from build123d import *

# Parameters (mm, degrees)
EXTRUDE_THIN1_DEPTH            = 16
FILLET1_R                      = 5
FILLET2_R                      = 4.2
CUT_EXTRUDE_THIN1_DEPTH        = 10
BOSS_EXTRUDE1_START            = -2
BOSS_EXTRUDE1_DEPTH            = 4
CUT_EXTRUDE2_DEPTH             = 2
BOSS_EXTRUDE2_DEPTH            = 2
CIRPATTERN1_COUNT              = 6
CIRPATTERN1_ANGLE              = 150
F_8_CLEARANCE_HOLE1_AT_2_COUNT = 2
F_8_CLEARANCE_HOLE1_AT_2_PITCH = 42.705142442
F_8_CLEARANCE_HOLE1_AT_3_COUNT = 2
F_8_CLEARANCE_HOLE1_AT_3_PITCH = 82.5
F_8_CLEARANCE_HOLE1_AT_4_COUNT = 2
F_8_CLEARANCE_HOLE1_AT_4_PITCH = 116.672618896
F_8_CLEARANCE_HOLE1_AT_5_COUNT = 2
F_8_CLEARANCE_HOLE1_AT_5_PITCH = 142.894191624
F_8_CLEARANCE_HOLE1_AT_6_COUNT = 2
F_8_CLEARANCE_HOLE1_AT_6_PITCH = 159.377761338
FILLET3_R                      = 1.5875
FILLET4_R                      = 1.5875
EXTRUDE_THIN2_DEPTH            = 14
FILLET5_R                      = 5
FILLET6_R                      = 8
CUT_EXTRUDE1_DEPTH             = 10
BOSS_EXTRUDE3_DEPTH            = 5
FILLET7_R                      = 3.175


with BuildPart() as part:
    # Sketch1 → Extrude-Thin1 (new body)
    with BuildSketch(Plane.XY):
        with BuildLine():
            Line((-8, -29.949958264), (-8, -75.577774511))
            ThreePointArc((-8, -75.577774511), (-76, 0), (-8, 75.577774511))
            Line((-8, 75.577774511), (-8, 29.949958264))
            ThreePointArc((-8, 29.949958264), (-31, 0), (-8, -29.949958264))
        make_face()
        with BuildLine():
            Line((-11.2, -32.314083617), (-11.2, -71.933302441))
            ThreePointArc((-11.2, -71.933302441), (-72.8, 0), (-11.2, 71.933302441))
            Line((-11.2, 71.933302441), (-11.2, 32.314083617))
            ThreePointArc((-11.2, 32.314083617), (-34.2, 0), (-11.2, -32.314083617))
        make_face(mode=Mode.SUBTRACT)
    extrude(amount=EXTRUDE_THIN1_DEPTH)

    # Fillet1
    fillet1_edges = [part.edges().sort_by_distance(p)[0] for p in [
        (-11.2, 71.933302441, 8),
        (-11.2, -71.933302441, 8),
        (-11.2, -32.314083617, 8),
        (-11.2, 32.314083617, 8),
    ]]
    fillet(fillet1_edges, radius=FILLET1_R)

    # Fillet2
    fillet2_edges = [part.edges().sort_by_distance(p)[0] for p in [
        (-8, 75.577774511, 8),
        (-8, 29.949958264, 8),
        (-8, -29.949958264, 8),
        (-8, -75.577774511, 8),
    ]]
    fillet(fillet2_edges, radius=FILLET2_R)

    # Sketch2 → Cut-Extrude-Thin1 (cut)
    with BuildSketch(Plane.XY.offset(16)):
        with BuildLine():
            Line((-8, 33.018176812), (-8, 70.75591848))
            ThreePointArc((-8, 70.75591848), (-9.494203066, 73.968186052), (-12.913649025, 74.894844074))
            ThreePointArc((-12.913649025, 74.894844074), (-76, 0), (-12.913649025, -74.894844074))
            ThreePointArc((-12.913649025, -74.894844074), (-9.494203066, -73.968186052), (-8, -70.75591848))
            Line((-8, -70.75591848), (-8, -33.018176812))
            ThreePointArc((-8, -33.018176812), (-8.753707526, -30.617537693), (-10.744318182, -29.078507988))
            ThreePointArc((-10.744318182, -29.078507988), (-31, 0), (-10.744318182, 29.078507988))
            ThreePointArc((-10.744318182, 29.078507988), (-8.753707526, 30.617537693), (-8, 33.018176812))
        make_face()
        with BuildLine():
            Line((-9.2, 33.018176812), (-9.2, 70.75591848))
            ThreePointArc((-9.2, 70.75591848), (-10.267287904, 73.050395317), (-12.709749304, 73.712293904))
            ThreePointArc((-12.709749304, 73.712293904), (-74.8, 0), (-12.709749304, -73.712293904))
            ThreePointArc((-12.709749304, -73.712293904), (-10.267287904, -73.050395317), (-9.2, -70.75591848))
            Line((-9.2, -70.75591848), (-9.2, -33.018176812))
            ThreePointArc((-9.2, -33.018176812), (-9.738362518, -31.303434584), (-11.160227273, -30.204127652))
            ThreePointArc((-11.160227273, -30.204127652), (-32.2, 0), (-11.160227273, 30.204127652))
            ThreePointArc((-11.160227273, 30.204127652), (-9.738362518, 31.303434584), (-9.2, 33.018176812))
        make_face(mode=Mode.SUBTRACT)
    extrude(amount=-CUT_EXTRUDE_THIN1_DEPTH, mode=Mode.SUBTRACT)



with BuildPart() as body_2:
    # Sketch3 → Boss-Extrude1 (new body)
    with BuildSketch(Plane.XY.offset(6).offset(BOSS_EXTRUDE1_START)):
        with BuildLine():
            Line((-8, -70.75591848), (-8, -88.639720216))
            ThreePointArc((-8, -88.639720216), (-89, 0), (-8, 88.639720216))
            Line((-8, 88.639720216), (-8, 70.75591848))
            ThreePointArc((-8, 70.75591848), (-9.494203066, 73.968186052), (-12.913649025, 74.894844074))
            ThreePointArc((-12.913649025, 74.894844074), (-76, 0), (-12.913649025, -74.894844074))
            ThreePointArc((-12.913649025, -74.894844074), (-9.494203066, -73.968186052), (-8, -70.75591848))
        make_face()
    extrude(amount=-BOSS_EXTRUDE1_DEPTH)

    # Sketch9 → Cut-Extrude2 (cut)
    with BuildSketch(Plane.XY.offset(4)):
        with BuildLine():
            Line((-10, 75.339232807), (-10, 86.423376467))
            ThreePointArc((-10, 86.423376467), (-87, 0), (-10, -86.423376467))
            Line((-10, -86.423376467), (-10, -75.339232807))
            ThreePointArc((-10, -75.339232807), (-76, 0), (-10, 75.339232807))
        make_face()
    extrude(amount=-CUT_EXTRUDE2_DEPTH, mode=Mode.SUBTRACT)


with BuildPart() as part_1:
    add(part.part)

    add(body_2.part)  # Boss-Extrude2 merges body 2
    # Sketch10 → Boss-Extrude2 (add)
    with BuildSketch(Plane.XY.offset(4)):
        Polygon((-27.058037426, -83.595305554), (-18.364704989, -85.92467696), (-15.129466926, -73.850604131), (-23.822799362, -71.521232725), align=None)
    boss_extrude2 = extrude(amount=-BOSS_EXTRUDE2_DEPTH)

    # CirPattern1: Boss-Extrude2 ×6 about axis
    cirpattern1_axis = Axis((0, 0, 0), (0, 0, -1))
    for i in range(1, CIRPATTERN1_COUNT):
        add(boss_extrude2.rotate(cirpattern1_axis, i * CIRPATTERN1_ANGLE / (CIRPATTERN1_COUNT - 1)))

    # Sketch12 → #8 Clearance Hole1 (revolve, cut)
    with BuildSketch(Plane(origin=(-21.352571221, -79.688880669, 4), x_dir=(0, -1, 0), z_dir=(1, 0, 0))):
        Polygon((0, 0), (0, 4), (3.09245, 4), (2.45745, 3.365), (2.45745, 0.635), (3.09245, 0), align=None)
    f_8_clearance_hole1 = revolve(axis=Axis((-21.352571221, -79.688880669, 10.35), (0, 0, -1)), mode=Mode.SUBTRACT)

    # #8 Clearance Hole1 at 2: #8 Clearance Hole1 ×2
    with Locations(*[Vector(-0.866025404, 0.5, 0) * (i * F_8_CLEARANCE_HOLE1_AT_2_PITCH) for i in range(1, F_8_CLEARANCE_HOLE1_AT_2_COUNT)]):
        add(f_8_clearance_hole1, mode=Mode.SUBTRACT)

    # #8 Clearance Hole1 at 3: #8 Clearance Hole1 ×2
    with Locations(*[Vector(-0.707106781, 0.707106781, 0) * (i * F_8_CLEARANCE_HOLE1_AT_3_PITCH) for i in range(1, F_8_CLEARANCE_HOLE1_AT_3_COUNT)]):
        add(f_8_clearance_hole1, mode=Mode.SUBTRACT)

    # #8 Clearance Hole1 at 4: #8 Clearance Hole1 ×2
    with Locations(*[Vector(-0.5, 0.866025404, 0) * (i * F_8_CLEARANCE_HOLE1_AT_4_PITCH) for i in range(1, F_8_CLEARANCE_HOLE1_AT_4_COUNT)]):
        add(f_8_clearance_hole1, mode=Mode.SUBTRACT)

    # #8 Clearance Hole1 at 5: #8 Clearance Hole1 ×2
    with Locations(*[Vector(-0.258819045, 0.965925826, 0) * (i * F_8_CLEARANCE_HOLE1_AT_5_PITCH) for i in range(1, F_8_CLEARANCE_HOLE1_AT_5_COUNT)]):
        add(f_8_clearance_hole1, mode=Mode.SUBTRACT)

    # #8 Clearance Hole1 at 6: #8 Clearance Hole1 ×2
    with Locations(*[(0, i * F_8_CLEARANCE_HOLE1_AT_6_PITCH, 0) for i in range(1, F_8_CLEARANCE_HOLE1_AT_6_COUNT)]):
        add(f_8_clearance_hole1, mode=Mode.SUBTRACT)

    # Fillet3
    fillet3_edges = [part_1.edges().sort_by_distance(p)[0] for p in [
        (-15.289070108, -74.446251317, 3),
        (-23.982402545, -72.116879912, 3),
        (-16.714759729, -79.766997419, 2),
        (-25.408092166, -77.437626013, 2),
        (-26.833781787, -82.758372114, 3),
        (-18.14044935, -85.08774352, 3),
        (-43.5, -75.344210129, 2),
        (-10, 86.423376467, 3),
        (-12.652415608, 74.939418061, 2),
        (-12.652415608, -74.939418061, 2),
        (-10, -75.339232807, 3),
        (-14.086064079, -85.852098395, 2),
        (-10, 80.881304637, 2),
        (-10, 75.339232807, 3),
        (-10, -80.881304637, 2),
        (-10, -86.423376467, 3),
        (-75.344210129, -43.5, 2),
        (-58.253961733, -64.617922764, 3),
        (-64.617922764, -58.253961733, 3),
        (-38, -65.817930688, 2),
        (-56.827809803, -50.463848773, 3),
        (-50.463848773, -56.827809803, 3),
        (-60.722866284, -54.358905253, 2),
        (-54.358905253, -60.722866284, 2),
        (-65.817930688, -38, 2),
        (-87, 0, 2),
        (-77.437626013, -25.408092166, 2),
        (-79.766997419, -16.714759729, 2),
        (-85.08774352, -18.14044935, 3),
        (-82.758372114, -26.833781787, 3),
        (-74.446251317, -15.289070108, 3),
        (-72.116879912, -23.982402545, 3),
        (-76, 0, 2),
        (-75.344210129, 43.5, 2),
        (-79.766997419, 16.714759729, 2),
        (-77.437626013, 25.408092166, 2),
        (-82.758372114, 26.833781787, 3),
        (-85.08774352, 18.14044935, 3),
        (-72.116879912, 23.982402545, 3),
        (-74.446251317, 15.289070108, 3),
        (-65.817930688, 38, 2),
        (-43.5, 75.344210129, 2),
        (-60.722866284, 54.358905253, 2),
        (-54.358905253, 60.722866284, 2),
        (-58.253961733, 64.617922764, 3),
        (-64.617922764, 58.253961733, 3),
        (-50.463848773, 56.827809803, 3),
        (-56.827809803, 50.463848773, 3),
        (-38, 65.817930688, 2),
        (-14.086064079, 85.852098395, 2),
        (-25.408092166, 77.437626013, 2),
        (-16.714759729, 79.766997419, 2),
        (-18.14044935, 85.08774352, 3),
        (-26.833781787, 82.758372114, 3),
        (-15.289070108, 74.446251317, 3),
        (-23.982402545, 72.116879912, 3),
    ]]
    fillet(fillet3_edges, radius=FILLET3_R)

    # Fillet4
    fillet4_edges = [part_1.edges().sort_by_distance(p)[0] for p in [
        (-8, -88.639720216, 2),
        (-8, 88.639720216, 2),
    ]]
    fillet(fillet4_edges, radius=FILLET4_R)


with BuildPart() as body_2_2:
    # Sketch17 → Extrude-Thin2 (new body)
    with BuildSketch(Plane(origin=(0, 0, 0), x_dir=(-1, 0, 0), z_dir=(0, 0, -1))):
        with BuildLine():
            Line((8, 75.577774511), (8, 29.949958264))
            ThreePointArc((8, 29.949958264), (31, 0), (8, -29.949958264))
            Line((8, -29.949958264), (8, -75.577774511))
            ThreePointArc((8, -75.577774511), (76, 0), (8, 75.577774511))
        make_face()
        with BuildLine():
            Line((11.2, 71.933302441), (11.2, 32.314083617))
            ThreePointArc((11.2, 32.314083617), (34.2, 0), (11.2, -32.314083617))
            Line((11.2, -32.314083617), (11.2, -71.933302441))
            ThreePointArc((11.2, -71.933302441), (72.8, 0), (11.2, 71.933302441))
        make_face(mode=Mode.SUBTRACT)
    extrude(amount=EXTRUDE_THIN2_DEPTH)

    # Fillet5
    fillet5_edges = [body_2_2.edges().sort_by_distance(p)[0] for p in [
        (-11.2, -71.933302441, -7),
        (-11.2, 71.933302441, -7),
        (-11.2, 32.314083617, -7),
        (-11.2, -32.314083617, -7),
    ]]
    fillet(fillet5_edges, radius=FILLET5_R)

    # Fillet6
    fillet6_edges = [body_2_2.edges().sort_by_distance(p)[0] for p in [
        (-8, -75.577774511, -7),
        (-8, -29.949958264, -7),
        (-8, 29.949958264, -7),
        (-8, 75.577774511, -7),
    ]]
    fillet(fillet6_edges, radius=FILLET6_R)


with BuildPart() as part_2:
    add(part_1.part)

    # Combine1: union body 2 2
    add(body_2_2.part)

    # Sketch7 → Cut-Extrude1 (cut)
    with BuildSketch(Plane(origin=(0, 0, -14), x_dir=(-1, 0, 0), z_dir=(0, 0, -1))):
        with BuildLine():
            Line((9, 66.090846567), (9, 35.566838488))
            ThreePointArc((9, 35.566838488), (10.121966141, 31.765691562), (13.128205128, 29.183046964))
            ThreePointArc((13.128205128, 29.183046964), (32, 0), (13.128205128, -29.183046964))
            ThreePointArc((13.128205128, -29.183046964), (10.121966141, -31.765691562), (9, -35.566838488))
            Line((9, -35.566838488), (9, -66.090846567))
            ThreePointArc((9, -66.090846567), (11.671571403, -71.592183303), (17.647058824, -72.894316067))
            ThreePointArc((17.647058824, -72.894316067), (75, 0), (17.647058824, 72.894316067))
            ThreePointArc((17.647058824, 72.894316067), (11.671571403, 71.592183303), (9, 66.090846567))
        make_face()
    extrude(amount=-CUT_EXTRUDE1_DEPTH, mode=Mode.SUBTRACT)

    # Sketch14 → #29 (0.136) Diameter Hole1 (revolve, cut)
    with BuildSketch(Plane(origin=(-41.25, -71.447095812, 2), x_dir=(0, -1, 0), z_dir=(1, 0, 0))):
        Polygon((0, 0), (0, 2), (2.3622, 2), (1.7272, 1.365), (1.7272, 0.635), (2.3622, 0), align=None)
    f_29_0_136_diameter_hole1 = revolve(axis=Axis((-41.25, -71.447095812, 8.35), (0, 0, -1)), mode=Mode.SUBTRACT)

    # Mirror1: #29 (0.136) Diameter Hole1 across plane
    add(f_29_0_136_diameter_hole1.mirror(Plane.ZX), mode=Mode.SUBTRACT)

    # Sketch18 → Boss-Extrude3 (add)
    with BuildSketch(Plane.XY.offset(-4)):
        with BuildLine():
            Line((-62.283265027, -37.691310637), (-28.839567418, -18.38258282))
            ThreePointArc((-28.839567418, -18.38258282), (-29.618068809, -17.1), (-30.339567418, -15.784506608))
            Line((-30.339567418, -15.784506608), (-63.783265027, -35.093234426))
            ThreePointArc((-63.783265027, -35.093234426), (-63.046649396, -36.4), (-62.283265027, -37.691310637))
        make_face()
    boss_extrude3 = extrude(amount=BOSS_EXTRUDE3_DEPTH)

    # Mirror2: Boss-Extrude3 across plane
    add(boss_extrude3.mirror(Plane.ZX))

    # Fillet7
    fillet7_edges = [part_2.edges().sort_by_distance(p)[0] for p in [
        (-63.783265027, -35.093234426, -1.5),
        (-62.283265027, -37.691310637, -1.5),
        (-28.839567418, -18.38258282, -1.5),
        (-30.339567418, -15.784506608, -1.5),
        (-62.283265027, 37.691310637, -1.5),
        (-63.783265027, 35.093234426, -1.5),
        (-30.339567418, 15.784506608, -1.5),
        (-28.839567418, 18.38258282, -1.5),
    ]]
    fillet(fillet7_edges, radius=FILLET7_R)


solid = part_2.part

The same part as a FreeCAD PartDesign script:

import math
import FreeCAD as App
import Part
import Sketcher

V = App.Vector
Q = App.Units.Quantity


def edges_at(feature, points):
    """Names of the edges that pass closest to the given points."""
    edges = feature.Shape.Edges
    near = lambda p: min(range(len(edges)), key=lambda i: edges[i].distToShape(Part.Vertex(*p))[0])
    return sorted({f"Edge{near(p) + 1}" for p in points})


def add_polygon(sketch, points):
    """Adds a closed chain of lines whose ends are joined by coincident constraints."""
    first, n = sketch.GeometryCount, len(points)
    for a, b in zip(points, points[1:] + points[:1]):
        sketch.addGeometry(Part.LineSegment(App.Vector(*a, 0), App.Vector(*b, 0)), False)
    for i in range(n):
        sketch.addConstraint(Sketcher.Constraint("Coincident", first + i, 2, first + (i + 1) % n, 1))

doc = App.newDocument("Part")
body = doc.addObject("PartDesign::Body", "Body")

# Sketch on XY plane
sketch1 = body.newObject("Sketcher::SketchObject", "Sketch")
sketch1.AttachmentSupport = (doc.getObject("XY_Plane"), [""])
sketch1.MapMode = "FlatFace"
sketch1.addGeometry([
    Part.LineSegment(V(-8, -76, 0), V(-8, -30, 0)),  # 0
    Part.ArcOfCircle(Part.Circle(V(0, 0, 0), V(0, 0, 1), 31), math.radians(105), math.radians(255)),  # 1
    Part.LineSegment(V(-8, 30, 0), V(-8, 76, 0)),  # 2
    Part.ArcOfCircle(Part.Circle(V(0, 0, 0), V(0, 0, 1), 76), math.radians(96), math.radians(264)),  # 3
    Part.LineSegment(V(-11, -32, 0), V(-11, -72, 0)),  # 4
    Part.ArcOfCircle(Part.Circle(V(0, 0, 0), V(0, 0, 1), 73), math.radians(99), math.radians(261)),  # 5
    Part.LineSegment(V(-11, 72, 0), V(-11, 32, 0)),  # 6
    Part.ArcOfCircle(Part.Circle(V(0, 0, 0), V(0, 0, 1), 34), math.radians(109), math.radians(251)),  # 7
], False)
sketch1.addConstraint([
    Sketcher.Constraint("Coincident", 0, 2, 1, 2),
    Sketcher.Constraint("Coincident", 1, 1, 2, 1),
    Sketcher.Constraint("Coincident", 2, 2, 3, 1),
    Sketcher.Constraint("Coincident", 3, 2, 0, 1),
    Sketcher.Constraint("Coincident", 4, 2, 5, 2),
    Sketcher.Constraint("Coincident", 5, 1, 6, 1),
    Sketcher.Constraint("Coincident", 6, 2, 7, 1),
    Sketcher.Constraint("Coincident", 7, 2, 4, 1),
    Sketcher.Constraint("Vertical", 0),
    Sketcher.Constraint("Vertical", 2),
    Sketcher.Constraint("Vertical", 4),
    Sketcher.Constraint("Vertical", 6),
    Sketcher.Constraint("Coincident", 1, 3, -1, 1),
    Sketcher.Constraint("Coincident", 3, 3, -1, 1),
    Sketcher.Constraint("Coincident", 5, 3, -1, 1),
    Sketcher.Constraint("Coincident", 7, 3, -1, 1),
    Sketcher.Constraint("Vertical", 0, 2, 1, 1),
    Sketcher.Constraint("Vertical", 4, 2, 5, 1),
    Sketcher.Constraint("Radius", 1, 31.0),
    Sketcher.Constraint("Radius", 3, 76.0),
    Sketcher.Constraint("Radius", 5, 72.8),
    Sketcher.Constraint("Radius", 7, 34.2),
    Sketcher.Constraint("DistanceX", 0, 2, -1, 1, 8.0),
    Sketcher.Constraint("DistanceX", 4, 2, -1, 1, 11.2),
])
pad1 = body.newObject("PartDesign::Pad", "Pad")
pad1.Profile = sketch1
pad1.Length = 16
doc.recompute()

fillet = body.newObject("PartDesign::Fillet", "Fillet")
fillet.Base = (pad1, edges_at(pad1, [
    (-11.2, 71.933, 8),
    (-11.2, -71.933, 8),
    (-11.2, -32.314, 8),
    (-11.2, 32.314, 8),
]))
fillet.Radius = 5
doc.recompute()

fillet2 = body.newObject("PartDesign::Fillet", "Fillet001")
fillet2.Base = (fillet, edges_at(fillet, [
    (-8, 75.578, 8),
    (-8, 29.95, 8),
    (-8, -29.95, 8),
    (-8, -75.578, 8),
]))
fillet2.Radius = 4.2

# Sketch on XY plane
sketch2 = body.newObject("Sketcher::SketchObject", "Sketch001")
sketch2.AttachmentSupport = (doc.getObject("XY_Plane"), [""])
sketch2.MapMode = "FlatFace"
sketch2.AttachmentOffset = App.Placement(V(0, 0, 16), App.Rotation())
sketch2.addGeometry([
    Part.LineSegment(V(-8, 33, 0), V(-8, 70.8, 0)),  # 0
    Part.ArcOfCircle(Part.Circle(V(-12.2, 70.8, 0), V(0, 0, 1), 4.2), math.radians(0), math.radians(100)),  # 1
    Part.ArcOfCircle(Part.Circle(V(0, 0, 0), V(0, 0, 1), 76), math.radians(100), math.radians(260)),  # 2
    Part.ArcOfCircle(Part.Circle(V(-12.2, -70.8, 0), V(0, 0, 1), 4.2), math.radians(-100), math.radians(0)),  # 3
    Part.LineSegment(V(-8, -70.8, 0), V(-8, -33, 0)),  # 4
    Part.ArcOfCircle(Part.Circle(V(-12.2, -33, 0), V(0, 0, 1), 4.2), math.radians(0), math.radians(70)),  # 5
    Part.ArcOfCircle(Part.Circle(V(0, 0, 0), V(0, 0, 1), 31), math.radians(110), math.radians(250)),  # 6
    Part.ArcOfCircle(Part.Circle(V(-12.2, 33, 0), V(0, 0, 1), 4.2), math.radians(-70), math.radians(0)),  # 7
    Part.LineSegment(V(-9.2, 70.8, 0), V(-9.2, 33, 0)),  # 8
    Part.ArcOfCircle(Part.Circle(V(-12.2, 33, 0), V(0, 0, 1), 3), math.radians(-70), math.radians(0)),  # 9
    Part.ArcOfCircle(Part.Circle(V(0, 0, 0), V(0, 0, 1), 32.2), math.radians(110), math.radians(250)),  # 10
    Part.ArcOfCircle(Part.Circle(V(-12.2, -33, 0), V(0, 0, 1), 3), math.radians(0), math.radians(70)),  # 11
    Part.LineSegment(V(-9.2, -33, 0), V(-9.2, -70.8, 0)),  # 12
    Part.ArcOfCircle(Part.Circle(V(-12.2, -70.8, 0), V(0, 0, 1), 3), math.radians(-100), math.radians(0)),  # 13
    Part.ArcOfCircle(Part.Circle(V(0, 0, 0), V(0, 0, 1), 74.8), math.radians(100), math.radians(260)),  # 14
    Part.ArcOfCircle(Part.Circle(V(-12.2, 70.8, 0), V(0, 0, 1), 3), math.radians(0), math.radians(100)),  # 15
], False)
sketch2.addConstraint([
    Sketcher.Constraint("Tangent", 0, 2, 1, 1),
    Sketcher.Constraint("Tangent", 1, 2, 2, 1),
    Sketcher.Constraint("Tangent", 2, 2, 3, 1),
    Sketcher.Constraint("Tangent", 3, 2, 4, 1),
    Sketcher.Constraint("Tangent", 4, 2, 5, 1),
    Sketcher.Constraint("Tangent", 5, 2, 6, 2),
    Sketcher.Constraint("Tangent", 6, 1, 7, 1),
    Sketcher.Constraint("Tangent", 7, 2, 0, 1),
    Sketcher.Constraint("Tangent", 8, 2, 9, 2),
    Sketcher.Constraint("Tangent", 9, 1, 10, 1),
    Sketcher.Constraint("Tangent", 10, 2, 11, 2),
    Sketcher.Constraint("Tangent", 11, 1, 12, 1),
    Sketcher.Constraint("Tangent", 12, 2, 13, 2),
    Sketcher.Constraint("Tangent", 13, 1, 14, 2),
    Sketcher.Constraint("Tangent", 14, 1, 15, 2),
    Sketcher.Constraint("Tangent", 15, 1, 8, 1),
    Sketcher.Constraint("Vertical", 0),
    Sketcher.Constraint("Vertical", 4),
    Sketcher.Constraint("Vertical", 8),
    Sketcher.Constraint("Vertical", 12),
    Sketcher.Constraint("Coincident", 2, 3, -1, 1),
    Sketcher.Constraint("Coincident", 6, 3, -1, 1),
    Sketcher.Constraint("Coincident", 10, 3, -1, 1),
    Sketcher.Constraint("Coincident", 14, 3, -1, 1),
    Sketcher.Constraint("Coincident", 9, 3, 7, 3),
    Sketcher.Constraint("Coincident", 11, 3, 5, 3),
    Sketcher.Constraint("Coincident", 13, 3, 3, 3),
    Sketcher.Constraint("Equal", 1, 3),
    Sketcher.Constraint("Equal", 3, 5),
    Sketcher.Constraint("Equal", 5, 7),
    Sketcher.Constraint("Equal", 13, 15),
    Sketcher.Constraint("Vertical", 1, 3, 3, 3),
    Sketcher.Constraint("Radius", 2, 76.0),
    Sketcher.Constraint("Radius", 6, 31.0),
    Sketcher.Constraint("Radius", 9, 3.0),
    Sketcher.Constraint("Radius", 1, 4.2),
    Sketcher.Constraint("DistanceX", 0, 2, -1, 1, 8.0),
])
pocket1 = body.newObject("PartDesign::Pocket", "Pocket")
pocket1.Profile = sketch2
pocket1.Length = 10
body2 = doc.addObject("PartDesign::Body", "Body001")

# Sketch on XY plane
sketch3 = body2.newObject("Sketcher::SketchObject", "Sketch002")
sketch3.AttachmentSupport = (doc.getObject("XY_Plane001"), [""])
sketch3.MapMode = "FlatFace"
sketch3.AttachmentOffset = App.Placement(V(0, 0, 4), App.Rotation())
sketch3.addGeometry([
    Part.LineSegment(V(-8, -88.6, 0), V(-8, -70.8, 0)),  # 0
    Part.ArcOfCircle(Part.Circle(V(-12.2, -70.8, 0), V(0, 0, 1), 4.2), math.radians(-100), math.radians(0)),  # 1
    Part.ArcOfCircle(Part.Circle(V(0, 0, 0), V(0, 0, 1), 76), math.radians(100), math.radians(260)),  # 2
    Part.ArcOfCircle(Part.Circle(V(-12.2, 70.8, 0), V(0, 0, 1), 4.2), math.radians(0), math.radians(100)),  # 3
    Part.LineSegment(V(-8, 70.8, 0), V(-8, 88.6, 0)),  # 4
    Part.ArcOfCircle(Part.Circle(V(0, 0, 0), V(0, 0, 1), 89), math.radians(95), math.radians(265)),  # 5
], False)
sketch3.addConstraint([
    Sketcher.Constraint("Tangent", 0, 2, 1, 2),
    Sketcher.Constraint("Tangent", 1, 1, 2, 2),
    Sketcher.Constraint("Tangent", 2, 1, 3, 2),
    Sketcher.Constraint("Tangent", 3, 1, 4, 1),
    Sketcher.Constraint("Coincident", 4, 2, 5, 1),
    Sketcher.Constraint("Coincident", 5, 2, 0, 1),
    Sketcher.Constraint("Vertical", 0),
    Sketcher.Constraint("Vertical", 4),
    Sketcher.Constraint("Coincident", 2, 3, -1, 1),
    Sketcher.Constraint("Coincident", 5, 3, -1, 1),
    Sketcher.Constraint("Equal", 1, 3),
    Sketcher.Constraint("Vertical", 1, 3, 3, 3),
    Sketcher.Constraint("Radius", 2, 76.0),
    Sketcher.Constraint("Radius", 5, 89.0),
    Sketcher.Constraint("Radius", 1, 4.2),
    Sketcher.Constraint("DistanceX", 0, 2, -1, 1, 8.0),
])
pad2 = body2.newObject("PartDesign::Pad", "Pad001")
pad2.Profile = sketch3
pad2.Length = 4
pad2.Reversed = True

# Sketch on XY plane
sketch4 = body2.newObject("Sketcher::SketchObject", "Sketch003")
sketch4.AttachmentSupport = (doc.getObject("XY_Plane001"), [""])
sketch4.MapMode = "FlatFace"
sketch4.AttachmentOffset = App.Placement(V(0, 0, 4), App.Rotation())
sketch4.addGeometry([
    Part.LineSegment(V(-10, 75, 0), V(-10, 86, 0)),
    Part.ArcOfCircle(Part.Circle(V(0, 0, 0), V(0, 0, 1), 87), math.radians(97), math.radians(263)),
    Part.LineSegment(V(-10, -86, 0), V(-10, -75, 0)),
    Part.ArcOfCircle(Part.Circle(V(0, 0, 0), V(0, 0, 1), 76), math.radians(98), math.radians(262)),
], False)
sketch4.addConstraint([
    Sketcher.Constraint("Coincident", 0, 2, 1, 1),
    Sketcher.Constraint("Coincident", 1, 2, 2, 1),
    Sketcher.Constraint("Coincident", 2, 2, 3, 2),
    Sketcher.Constraint("Coincident", 3, 1, 0, 1),
    Sketcher.Constraint("Vertical", 0),
    Sketcher.Constraint("Vertical", 2),
    Sketcher.Constraint("Coincident", 1, 3, -1, 1),
    Sketcher.Constraint("Coincident", 3, 3, -1, 1),
    Sketcher.Constraint("Vertical", 0, 2, 1, 2),
    Sketcher.Constraint("Radius", 1, 87.0),
    Sketcher.Constraint("Radius", 3, 76.0),
    Sketcher.Constraint("DistanceX", 0, 2, -1, 1, 10.0),
])
pocket2 = body2.newObject("PartDesign::Pocket", "Pocket001")
pocket2.Profile = sketch4
pocket2.Length = 2
doc.recompute()

boolean = body.newObject("PartDesign::Boolean", "Boolean")
boolean.Type = "Fuse"
boolean.addObjects([body2])

# Sketch on XY plane
sketch5 = body.newObject("Sketcher::SketchObject", "Sketch004")
sketch5.AttachmentSupport = (doc.getObject("XY_Plane"), [""])
sketch5.MapMode = "FlatFace"
sketch5.AttachmentOffset = App.Placement(V(0, 0, 4), App.Rotation())
add_polygon(sketch5, [(-27, -84), (-18, -86), (-15, -74), (-24, -72)])  # lines 0-3
sketch5.addConstraint([
    Sketcher.Constraint("Perpendicular", 0, 1),
    Sketcher.Constraint("Perpendicular", 1, 2),
    Sketcher.Constraint("Perpendicular", 2, 3),
    Sketcher.Constraint("Angle", 0, Q("-15 deg")),
    Sketcher.Constraint("Distance", 0, 9.0),
    Sketcher.Constraint("Distance", 1, 12.5),
    Sketcher.Constraint("DistanceX", 2, 2, -1, 1, 23.822799),
    Sketcher.Constraint("DistanceY", 0, 2, -1, 1, 85.924677),
])
pad3 = body.newObject("PartDesign::Pad", "Pad002")
pad3.Profile = sketch5
pad3.Length = 2
pad3.Reversed = True
doc.recompute()

polarpattern = body.newObject("PartDesign::PolarPattern", "PolarPattern")
polarpattern.Originals = [pad3]
polarpattern.Axis = (doc.getObject("Z_Axis"), [""])
polarpattern.Angle = 150
polarpattern.Occurrences = 6
polarpattern.Reversed = True
body.Tip = polarpattern

# Sketch on YZ plane
sketch6 = body.newObject("Sketcher::SketchObject", "Sketch005")
sketch6.AttachmentSupport = (doc.getObject("YZ_Plane"), [""])
sketch6.MapMode = "FlatFace"
sketch6.AttachmentOffset = App.Placement(V(0, 0, -21.352571), App.Rotation())
add_polygon(sketch6, [(-79.7, 0), (-79.7, 4), (-82.8, 4), (-82.1, 3.4), (-82.1, 0.6), (-82.8, 0)])  # lines 0-5
sketch6.addGeometry(Part.LineSegment(V(-79.7, 4, 0), V(-79.7, 0, 0)), True)  # axis
sketch6.addConstraint([
    Sketcher.Constraint("Vertical", 0),
    Sketcher.Constraint("Horizontal", 1),
    Sketcher.Constraint("Vertical", 3),
    Sketcher.Constraint("Horizontal", 5),
    Sketcher.Constraint("Vertical", 6),
    Sketcher.Constraint("Coincident", 6, 1, 0, 2),
    Sketcher.Constraint("PointOnObject", 4, 2, -1),
    Sketcher.Constraint("PointOnObject", 6, 2, -1),
    Sketcher.Constraint("Perpendicular", 2, 4),
    Sketcher.Constraint("Vertical", 1, 2, 4, 2),
    Sketcher.Constraint("Equal", 2, 4),
    Sketcher.Constraint("DistanceY", 0, 1, 0, 2, 4.0),
    Sketcher.Constraint("DistanceY", 3, 2, 3, 1, 2.73),
    Sketcher.Constraint("DistanceX", 1, 2, 1, 1, 3.09245),
    Sketcher.Constraint("DistanceX", 0, 2, -1, 1, 79.688881),
])
groove = body.newObject("PartDesign::Groove", "Groove")
groove.Profile = sketch6
groove.ReferenceAxis = (sketch6, ["Axis0"])
groove.Angle = 360
doc.recompute()

datumline = body.newObject("PartDesign::Line", "DatumLine")
datumline.Placement = App.Placement(V(0, 0, 0), App.Rotation(V(0, 0, 1), V(-0.866025404, 0.5, 0)))
linearpattern = body.newObject("PartDesign::LinearPattern", "LinearPattern")
linearpattern.Originals = [groove]
linearpattern.Direction = (datumline, [""])
linearpattern.Mode = "offset"
linearpattern.Offset = 42.705142
linearpattern.Occurrences = 2
body.Tip = linearpattern
doc.recompute()

datumline2 = body.newObject("PartDesign::Line", "DatumLine001")
datumline2.Placement = App.Placement(V(0, 0, 0), App.Rotation(V(0, 0, 1), V(-0.707106781, 0.707106781, 0)))
linearpattern2 = body.newObject("PartDesign::LinearPattern", "LinearPattern001")
linearpattern2.Originals = [groove]
linearpattern2.Direction = (datumline2, [""])
linearpattern2.Mode = "offset"
linearpattern2.Offset = 82.5
linearpattern2.Occurrences = 2
body.Tip = linearpattern2
doc.recompute()

datumline3 = body.newObject("PartDesign::Line", "DatumLine002")
datumline3.Placement = App.Placement(V(0, 0, 0), App.Rotation(V(0, 0, 1), V(-0.5, 0.866025404, 0)))
linearpattern3 = body.newObject("PartDesign::LinearPattern", "LinearPattern002")
linearpattern3.Originals = [groove]
linearpattern3.Direction = (datumline3, [""])
linearpattern3.Mode = "offset"
linearpattern3.Offset = 116.672619
linearpattern3.Occurrences = 2
body.Tip = linearpattern3
doc.recompute()

datumline4 = body.newObject("PartDesign::Line", "DatumLine003")
datumline4.Placement = App.Placement(V(0, 0, 0), App.Rotation(V(0, 0, 1), V(-0.258819045, 0.965925826, 0)))
linearpattern4 = body.newObject("PartDesign::LinearPattern", "LinearPattern003")
linearpattern4.Originals = [groove]
linearpattern4.Direction = (datumline4, [""])
linearpattern4.Mode = "offset"
linearpattern4.Offset = 142.894192
linearpattern4.Occurrences = 2
body.Tip = linearpattern4
doc.recompute()

linearpattern5 = body.newObject("PartDesign::LinearPattern", "LinearPattern004")
linearpattern5.Originals = [groove]
linearpattern5.Direction = (doc.getObject("Y_Axis"), [""])
linearpattern5.Mode = "offset"
linearpattern5.Offset = 159.377761
linearpattern5.Occurrences = 2
body.Tip = linearpattern5
doc.recompute()

fillet3 = body.newObject("PartDesign::Fillet", "Fillet002")
fillet3.Base = (linearpattern5, edges_at(linearpattern5, [
    (-15.289, -74.446, 3),
    (-23.982, -72.117, 3),
    (-16.715, -79.767, 2),
    (-25.408, -77.438, 2),
    (-26.834, -82.758, 3),
    (-18.14, -85.088, 3),
    (-43.5, -75.344, 2),
    (-10, 86.423, 3),
    (-11.459, 75.131, 2),
    (-11.459, -75.131, 2),
    (-10, -75.339, 3),
    (-14.086, -85.852, 2),
    (-10, 80.881, 2),
    (-10, 75.339, 3),
    (-10, -80.881, 2),
    (-10, -86.423, 3),
    (-75.344, -43.5, 2),
    (-58.254, -64.618, 3),
    (-64.618, -58.254, 3),
    (-38, -65.818, 2),
    (-56.828, -50.464, 3),
    (-50.464, -56.828, 3),
    (-60.723, -54.359, 2),
    (-54.359, -60.723, 2),
    (-65.818, -38, 2),
    (-87, 0, 2),
    (-77.438, -25.408, 2),
    (-79.767, -16.715, 2),
    (-85.088, -18.14, 3),
    (-82.758, -26.834, 3),
    (-74.446, -15.289, 3),
    (-72.117, -23.982, 3),
    (-76, 0, 2),
    (-75.344, 43.5, 2),
    (-79.767, 16.715, 2),
    (-77.438, 25.408, 2),
    (-82.758, 26.834, 3),
    (-85.088, 18.14, 3),
    (-72.117, 23.982, 3),
    (-74.446, 15.289, 3),
    (-65.818, 38, 2),
    (-43.5, 75.344, 2),
    (-60.723, 54.359, 2),
    (-54.359, 60.723, 2),
    (-58.254, 64.618, 3),
    (-64.618, 58.254, 3),
    (-50.464, 56.828, 3),
    (-56.828, 50.464, 3),
    (-38, 65.818, 2),
    (-14.086, 85.852, 2),
    (-25.408, 77.438, 2),
    (-16.715, 79.767, 2),
    (-18.14, 85.088, 3),
    (-26.834, 82.758, 3),
    (-15.289, 74.446, 3),
    (-23.982, 72.117, 3),
]))
fillet3.Radius = 1.5875
doc.recompute()

fillet4 = body.newObject("PartDesign::Fillet", "Fillet003")
fillet4.Base = (fillet3, edges_at(fillet3, [(-8, -88.64, 2), (-8, 88.64, 2)]))
fillet4.Radius = 1.5875
body3 = doc.addObject("PartDesign::Body", "Body002")

# Sketch on XY plane
sketch7 = body3.newObject("Sketcher::SketchObject", "Sketch006")
sketch7.AttachmentSupport = (doc.getObject("XY_Plane002"), [""])
sketch7.MapMode = "FlatFace"
sketch7.addGeometry([
    Part.LineSegment(V(-8, 76, 0), V(-8, 30, 0)),  # 0
    Part.ArcOfCircle(Part.Circle(V(0, 0, 0), V(0, 0, 1), 31), math.radians(105), math.radians(255)),  # 1
    Part.LineSegment(V(-8, -30, 0), V(-8, -76, 0)),  # 2
    Part.ArcOfCircle(Part.Circle(V(0, 0, 0), V(0, 0, 1), 76), math.radians(96), math.radians(264)),  # 3
    Part.LineSegment(V(-11, 32, 0), V(-11, 72, 0)),  # 4
    Part.ArcOfCircle(Part.Circle(V(0, 0, 0), V(0, 0, 1), 73), math.radians(99), math.radians(261)),  # 5
    Part.LineSegment(V(-11, -72, 0), V(-11, -32, 0)),  # 6
    Part.ArcOfCircle(Part.Circle(V(0, 0, 0), V(0, 0, 1), 34), math.radians(109), math.radians(251)),  # 7
], False)
sketch7.addConstraint([
    Sketcher.Constraint("Coincident", 0, 2, 1, 1),
    Sketcher.Constraint("Coincident", 1, 2, 2, 1),
    Sketcher.Constraint("Coincident", 2, 2, 3, 2),
    Sketcher.Constraint("Coincident", 3, 1, 0, 1),
    Sketcher.Constraint("Coincident", 4, 2, 5, 1),
    Sketcher.Constraint("Coincident", 5, 2, 6, 1),
    Sketcher.Constraint("Coincident", 6, 2, 7, 2),
    Sketcher.Constraint("Coincident", 7, 1, 4, 1),
    Sketcher.Constraint("Vertical", 0),
    Sketcher.Constraint("Vertical", 2),
    Sketcher.Constraint("Vertical", 4),
    Sketcher.Constraint("Vertical", 6),
    Sketcher.Constraint("Coincident", 1, 3, -1, 1),
    Sketcher.Constraint("Coincident", 3, 3, -1, 1),
    Sketcher.Constraint("Coincident", 5, 3, -1, 1),
    Sketcher.Constraint("Coincident", 7, 3, -1, 1),
    Sketcher.Constraint("Vertical", 0, 2, 1, 2),
    Sketcher.Constraint("Vertical", 4, 2, 5, 2),
    Sketcher.Constraint("Radius", 1, 31.0),
    Sketcher.Constraint("Radius", 3, 76.0),
    Sketcher.Constraint("Radius", 5, 72.8),
    Sketcher.Constraint("Radius", 7, 34.2),
    Sketcher.Constraint("DistanceX", 0, 2, -1, 1, 8.0),
    Sketcher.Constraint("DistanceX", 4, 2, -1, 1, 11.2),
])
pad4 = body3.newObject("PartDesign::Pad", "Pad003")
pad4.Profile = sketch7
pad4.Length = 14
pad4.Reversed = True
doc.recompute()

fillet5 = body3.newObject("PartDesign::Fillet", "Fillet004")
fillet5.Base = (pad4, edges_at(pad4, [
    (-11.2, -71.933, -7),
    (-11.2, 71.933, -7),
    (-11.2, 32.314, -7),
    (-11.2, -32.314, -7),
]))
fillet5.Radius = 5
doc.recompute()

fillet6 = body3.newObject("PartDesign::Fillet", "Fillet005")
fillet6.Base = (fillet5, edges_at(fillet5, [
    (-8, -75.578, -7),
    (-8, -29.95, -7),
    (-8, 29.95, -7),
    (-8, 75.578, -7),
]))
fillet6.Radius = 8
doc.recompute()

boolean2 = body.newObject("PartDesign::Boolean", "Boolean001")
boolean2.Type = "Fuse"
boolean2.addObjects([body3])

# Sketch on XY plane
sketch8 = body.newObject("Sketcher::SketchObject", "Sketch007")
sketch8.AttachmentSupport = (doc.getObject("XY_Plane"), [""])
sketch8.MapMode = "FlatFace"
sketch8.AttachmentOffset = App.Placement(V(0, 0, -14), App.Rotation())
sketch8.addGeometry([
    Part.LineSegment(V(-9, 66, 0), V(-9, 36, 0)),  # 0
    Part.ArcOfCircle(Part.Circle(V(-16, 36, 0), V(0, 0, 1), 7), math.radians(-66), math.radians(0)),  # 1
    Part.ArcOfCircle(Part.Circle(V(0, 0, 0), V(0, 0, 1), 32), math.radians(114), math.radians(246)),  # 2
    Part.ArcOfCircle(Part.Circle(V(-16, -36, 0), V(0, 0, 1), 7), math.radians(0), math.radians(66)),  # 3
    Part.LineSegment(V(-9, -36, 0), V(-9, -66, 0)),  # 4
    Part.ArcOfCircle(Part.Circle(V(-16, -66, 0), V(0, 0, 1), 7), math.radians(-104), math.radians(0)),  # 5
    Part.ArcOfCircle(Part.Circle(V(0, 0, 0), V(0, 0, 1), 75), math.radians(104), math.radians(256)),  # 6
    Part.ArcOfCircle(Part.Circle(V(-16, 66, 0), V(0, 0, 1), 7), math.radians(0), math.radians(104)),  # 7
], False)
sketch8.addConstraint([
    Sketcher.Constraint("Tangent", 0, 2, 1, 2),
    Sketcher.Constraint("Tangent", 1, 1, 2, 1),
    Sketcher.Constraint("Tangent", 2, 2, 3, 2),
    Sketcher.Constraint("Tangent", 3, 1, 4, 1),
    Sketcher.Constraint("Tangent", 4, 2, 5, 2),
    Sketcher.Constraint("Tangent", 5, 1, 6, 2),
    Sketcher.Constraint("Tangent", 6, 1, 7, 2),
    Sketcher.Constraint("Tangent", 7, 1, 0, 1),
    Sketcher.Constraint("Vertical", 0),
    Sketcher.Constraint("Vertical", 4),
    Sketcher.Constraint("Coincident", 2, 3, -1, 1),
    Sketcher.Constraint("Coincident", 6, 3, -1, 1),
    Sketcher.Constraint("Equal", 1, 3),
    Sketcher.Constraint("Equal", 3, 5),
    Sketcher.Constraint("Equal", 5, 7),
    Sketcher.Constraint("Vertical", 1, 3, 3, 3),
    Sketcher.Constraint("Radius", 1, 7.0),
    Sketcher.Constraint("Radius", 2, 32.0),
    Sketcher.Constraint("Radius", 6, 75.0),
    Sketcher.Constraint("DistanceX", 1, 3, -1, 1, 16.0),
])
pocket3 = body.newObject("PartDesign::Pocket", "Pocket002")
pocket3.Profile = sketch8
pocket3.Length = 10
pocket3.Reversed = True

# Sketch on YZ plane
sketch9 = body.newObject("Sketcher::SketchObject", "Sketch008")
sketch9.AttachmentSupport = (doc.getObject("YZ_Plane"), [""])
sketch9.MapMode = "FlatFace"
sketch9.AttachmentOffset = App.Placement(V(0, 0, -41.25), App.Rotation())
add_polygon(sketch9, [(-71.4, 0), (-71.4, 2), (-73.8, 2), (-73.2, 1.4), (-73.2, 0.6), (-73.8, 0)])  # lines 0-5
sketch9.addGeometry(Part.LineSegment(V(-71.4, 2, 0), V(-71.4, 0, 0)), True)  # axis
sketch9.addConstraint([
    Sketcher.Constraint("Vertical", 0),
    Sketcher.Constraint("Horizontal", 1),
    Sketcher.Constraint("Vertical", 3),
    Sketcher.Constraint("Horizontal", 5),
    Sketcher.Constraint("Vertical", 6),
    Sketcher.Constraint("Coincident", 6, 1, 0, 2),
    Sketcher.Constraint("PointOnObject", 4, 2, -1),
    Sketcher.Constraint("PointOnObject", 6, 2, -1),
    Sketcher.Constraint("Perpendicular", 2, 4),
    Sketcher.Constraint("Vertical", 1, 2, 4, 2),
    Sketcher.Constraint("Equal", 2, 4),
    Sketcher.Constraint("DistanceY", 0, 1, 0, 2, 2.0),
    Sketcher.Constraint("DistanceY", 3, 2, 3, 1, 0.73),
    Sketcher.Constraint("DistanceX", 1, 2, 1, 1, 2.3622),
    Sketcher.Constraint("DistanceX", 0, 2, -1, 1, 71.447096),
])
groove2 = body.newObject("PartDesign::Groove", "Groove001")
groove2.Profile = sketch9
groove2.ReferenceAxis = (sketch9, ["Axis0"])
groove2.Angle = 360
doc.recompute()

mirrored = body.newObject("PartDesign::Mirrored", "Mirrored")
mirrored.Originals = [groove2]
mirrored.MirrorPlane = (doc.getObject("XZ_Plane"), [""])
body.Tip = mirrored

# Sketch on XY plane
sketch10 = body.newObject("Sketcher::SketchObject", "Sketch009")
sketch10.AttachmentSupport = (doc.getObject("XY_Plane"), [""])
sketch10.MapMode = "FlatFace"
sketch10.AttachmentOffset = App.Placement(V(0, 0, -4), App.Rotation())
sketch10.addGeometry([
    Part.LineSegment(V(-62.3, -37.7, 0), V(-28.8, -18.4, 0)),
    Part.ArcOfCircle(Part.Circle(V(0, 0, 0), V(0, 0, 1), 34.2), math.radians(-152.51), math.radians(-147.49)),
    Part.LineSegment(V(-30.3, -15.8, 0), V(-63.8, -35.1, 0)),
    Part.ArcOfCircle(Part.Circle(V(0, 0, 0), V(0, 0, 1), 72.8), math.radians(-151.18), math.radians(-148.82)),
], False)
sketch10.addConstraint([
    Sketcher.Constraint("Coincident", 0, 2, 1, 2),
    Sketcher.Constraint("Coincident", 1, 1, 2, 1),
    Sketcher.Constraint("Coincident", 2, 2, 3, 1),
    Sketcher.Constraint("Coincident", 3, 2, 0, 1),
    Sketcher.Constraint("Coincident", 1, 3, -1, 1),
    Sketcher.Constraint("Coincident", 3, 3, -1, 1),
    Sketcher.Constraint("Parallel", 0, 2),
    Sketcher.Constraint("Equal", 0, 2),
    Sketcher.Constraint("Radius", 1, 34.2),
    Sketcher.Constraint("Angle", 0, Q("30 deg")),
    Sketcher.Constraint("DistanceX", 1, 1, 0, 2, 1.5),
    Sketcher.Constraint("Radius", 3, 72.799997),
])
pad5 = body.newObject("PartDesign::Pad", "Pad004")
pad5.Profile = sketch10
pad5.Length = 5
doc.recompute()

mirrored2 = body.newObject("PartDesign::Mirrored", "Mirrored001")
mirrored2.Originals = [pad5]
mirrored2.MirrorPlane = (doc.getObject("XZ_Plane"), [""])
body.Tip = mirrored2
doc.recompute()

fillet7 = body.newObject("PartDesign::Fillet", "Fillet006")
fillet7.Base = (mirrored2, edges_at(mirrored2, [
    (-63.783, -35.093, -1.5),
    (-62.283, -37.691, -1.5),
    (-28.84, -18.383, -1.5),
    (-30.34, -15.785, -1.5),
    (-62.283, 37.691, -1.5),
    (-63.783, 35.093, -1.5),
    (-30.34, 15.785, -1.5),
    (-28.84, 18.383, -1.5),
]))
fillet7.Radius = 3.175

doc.recompute()
